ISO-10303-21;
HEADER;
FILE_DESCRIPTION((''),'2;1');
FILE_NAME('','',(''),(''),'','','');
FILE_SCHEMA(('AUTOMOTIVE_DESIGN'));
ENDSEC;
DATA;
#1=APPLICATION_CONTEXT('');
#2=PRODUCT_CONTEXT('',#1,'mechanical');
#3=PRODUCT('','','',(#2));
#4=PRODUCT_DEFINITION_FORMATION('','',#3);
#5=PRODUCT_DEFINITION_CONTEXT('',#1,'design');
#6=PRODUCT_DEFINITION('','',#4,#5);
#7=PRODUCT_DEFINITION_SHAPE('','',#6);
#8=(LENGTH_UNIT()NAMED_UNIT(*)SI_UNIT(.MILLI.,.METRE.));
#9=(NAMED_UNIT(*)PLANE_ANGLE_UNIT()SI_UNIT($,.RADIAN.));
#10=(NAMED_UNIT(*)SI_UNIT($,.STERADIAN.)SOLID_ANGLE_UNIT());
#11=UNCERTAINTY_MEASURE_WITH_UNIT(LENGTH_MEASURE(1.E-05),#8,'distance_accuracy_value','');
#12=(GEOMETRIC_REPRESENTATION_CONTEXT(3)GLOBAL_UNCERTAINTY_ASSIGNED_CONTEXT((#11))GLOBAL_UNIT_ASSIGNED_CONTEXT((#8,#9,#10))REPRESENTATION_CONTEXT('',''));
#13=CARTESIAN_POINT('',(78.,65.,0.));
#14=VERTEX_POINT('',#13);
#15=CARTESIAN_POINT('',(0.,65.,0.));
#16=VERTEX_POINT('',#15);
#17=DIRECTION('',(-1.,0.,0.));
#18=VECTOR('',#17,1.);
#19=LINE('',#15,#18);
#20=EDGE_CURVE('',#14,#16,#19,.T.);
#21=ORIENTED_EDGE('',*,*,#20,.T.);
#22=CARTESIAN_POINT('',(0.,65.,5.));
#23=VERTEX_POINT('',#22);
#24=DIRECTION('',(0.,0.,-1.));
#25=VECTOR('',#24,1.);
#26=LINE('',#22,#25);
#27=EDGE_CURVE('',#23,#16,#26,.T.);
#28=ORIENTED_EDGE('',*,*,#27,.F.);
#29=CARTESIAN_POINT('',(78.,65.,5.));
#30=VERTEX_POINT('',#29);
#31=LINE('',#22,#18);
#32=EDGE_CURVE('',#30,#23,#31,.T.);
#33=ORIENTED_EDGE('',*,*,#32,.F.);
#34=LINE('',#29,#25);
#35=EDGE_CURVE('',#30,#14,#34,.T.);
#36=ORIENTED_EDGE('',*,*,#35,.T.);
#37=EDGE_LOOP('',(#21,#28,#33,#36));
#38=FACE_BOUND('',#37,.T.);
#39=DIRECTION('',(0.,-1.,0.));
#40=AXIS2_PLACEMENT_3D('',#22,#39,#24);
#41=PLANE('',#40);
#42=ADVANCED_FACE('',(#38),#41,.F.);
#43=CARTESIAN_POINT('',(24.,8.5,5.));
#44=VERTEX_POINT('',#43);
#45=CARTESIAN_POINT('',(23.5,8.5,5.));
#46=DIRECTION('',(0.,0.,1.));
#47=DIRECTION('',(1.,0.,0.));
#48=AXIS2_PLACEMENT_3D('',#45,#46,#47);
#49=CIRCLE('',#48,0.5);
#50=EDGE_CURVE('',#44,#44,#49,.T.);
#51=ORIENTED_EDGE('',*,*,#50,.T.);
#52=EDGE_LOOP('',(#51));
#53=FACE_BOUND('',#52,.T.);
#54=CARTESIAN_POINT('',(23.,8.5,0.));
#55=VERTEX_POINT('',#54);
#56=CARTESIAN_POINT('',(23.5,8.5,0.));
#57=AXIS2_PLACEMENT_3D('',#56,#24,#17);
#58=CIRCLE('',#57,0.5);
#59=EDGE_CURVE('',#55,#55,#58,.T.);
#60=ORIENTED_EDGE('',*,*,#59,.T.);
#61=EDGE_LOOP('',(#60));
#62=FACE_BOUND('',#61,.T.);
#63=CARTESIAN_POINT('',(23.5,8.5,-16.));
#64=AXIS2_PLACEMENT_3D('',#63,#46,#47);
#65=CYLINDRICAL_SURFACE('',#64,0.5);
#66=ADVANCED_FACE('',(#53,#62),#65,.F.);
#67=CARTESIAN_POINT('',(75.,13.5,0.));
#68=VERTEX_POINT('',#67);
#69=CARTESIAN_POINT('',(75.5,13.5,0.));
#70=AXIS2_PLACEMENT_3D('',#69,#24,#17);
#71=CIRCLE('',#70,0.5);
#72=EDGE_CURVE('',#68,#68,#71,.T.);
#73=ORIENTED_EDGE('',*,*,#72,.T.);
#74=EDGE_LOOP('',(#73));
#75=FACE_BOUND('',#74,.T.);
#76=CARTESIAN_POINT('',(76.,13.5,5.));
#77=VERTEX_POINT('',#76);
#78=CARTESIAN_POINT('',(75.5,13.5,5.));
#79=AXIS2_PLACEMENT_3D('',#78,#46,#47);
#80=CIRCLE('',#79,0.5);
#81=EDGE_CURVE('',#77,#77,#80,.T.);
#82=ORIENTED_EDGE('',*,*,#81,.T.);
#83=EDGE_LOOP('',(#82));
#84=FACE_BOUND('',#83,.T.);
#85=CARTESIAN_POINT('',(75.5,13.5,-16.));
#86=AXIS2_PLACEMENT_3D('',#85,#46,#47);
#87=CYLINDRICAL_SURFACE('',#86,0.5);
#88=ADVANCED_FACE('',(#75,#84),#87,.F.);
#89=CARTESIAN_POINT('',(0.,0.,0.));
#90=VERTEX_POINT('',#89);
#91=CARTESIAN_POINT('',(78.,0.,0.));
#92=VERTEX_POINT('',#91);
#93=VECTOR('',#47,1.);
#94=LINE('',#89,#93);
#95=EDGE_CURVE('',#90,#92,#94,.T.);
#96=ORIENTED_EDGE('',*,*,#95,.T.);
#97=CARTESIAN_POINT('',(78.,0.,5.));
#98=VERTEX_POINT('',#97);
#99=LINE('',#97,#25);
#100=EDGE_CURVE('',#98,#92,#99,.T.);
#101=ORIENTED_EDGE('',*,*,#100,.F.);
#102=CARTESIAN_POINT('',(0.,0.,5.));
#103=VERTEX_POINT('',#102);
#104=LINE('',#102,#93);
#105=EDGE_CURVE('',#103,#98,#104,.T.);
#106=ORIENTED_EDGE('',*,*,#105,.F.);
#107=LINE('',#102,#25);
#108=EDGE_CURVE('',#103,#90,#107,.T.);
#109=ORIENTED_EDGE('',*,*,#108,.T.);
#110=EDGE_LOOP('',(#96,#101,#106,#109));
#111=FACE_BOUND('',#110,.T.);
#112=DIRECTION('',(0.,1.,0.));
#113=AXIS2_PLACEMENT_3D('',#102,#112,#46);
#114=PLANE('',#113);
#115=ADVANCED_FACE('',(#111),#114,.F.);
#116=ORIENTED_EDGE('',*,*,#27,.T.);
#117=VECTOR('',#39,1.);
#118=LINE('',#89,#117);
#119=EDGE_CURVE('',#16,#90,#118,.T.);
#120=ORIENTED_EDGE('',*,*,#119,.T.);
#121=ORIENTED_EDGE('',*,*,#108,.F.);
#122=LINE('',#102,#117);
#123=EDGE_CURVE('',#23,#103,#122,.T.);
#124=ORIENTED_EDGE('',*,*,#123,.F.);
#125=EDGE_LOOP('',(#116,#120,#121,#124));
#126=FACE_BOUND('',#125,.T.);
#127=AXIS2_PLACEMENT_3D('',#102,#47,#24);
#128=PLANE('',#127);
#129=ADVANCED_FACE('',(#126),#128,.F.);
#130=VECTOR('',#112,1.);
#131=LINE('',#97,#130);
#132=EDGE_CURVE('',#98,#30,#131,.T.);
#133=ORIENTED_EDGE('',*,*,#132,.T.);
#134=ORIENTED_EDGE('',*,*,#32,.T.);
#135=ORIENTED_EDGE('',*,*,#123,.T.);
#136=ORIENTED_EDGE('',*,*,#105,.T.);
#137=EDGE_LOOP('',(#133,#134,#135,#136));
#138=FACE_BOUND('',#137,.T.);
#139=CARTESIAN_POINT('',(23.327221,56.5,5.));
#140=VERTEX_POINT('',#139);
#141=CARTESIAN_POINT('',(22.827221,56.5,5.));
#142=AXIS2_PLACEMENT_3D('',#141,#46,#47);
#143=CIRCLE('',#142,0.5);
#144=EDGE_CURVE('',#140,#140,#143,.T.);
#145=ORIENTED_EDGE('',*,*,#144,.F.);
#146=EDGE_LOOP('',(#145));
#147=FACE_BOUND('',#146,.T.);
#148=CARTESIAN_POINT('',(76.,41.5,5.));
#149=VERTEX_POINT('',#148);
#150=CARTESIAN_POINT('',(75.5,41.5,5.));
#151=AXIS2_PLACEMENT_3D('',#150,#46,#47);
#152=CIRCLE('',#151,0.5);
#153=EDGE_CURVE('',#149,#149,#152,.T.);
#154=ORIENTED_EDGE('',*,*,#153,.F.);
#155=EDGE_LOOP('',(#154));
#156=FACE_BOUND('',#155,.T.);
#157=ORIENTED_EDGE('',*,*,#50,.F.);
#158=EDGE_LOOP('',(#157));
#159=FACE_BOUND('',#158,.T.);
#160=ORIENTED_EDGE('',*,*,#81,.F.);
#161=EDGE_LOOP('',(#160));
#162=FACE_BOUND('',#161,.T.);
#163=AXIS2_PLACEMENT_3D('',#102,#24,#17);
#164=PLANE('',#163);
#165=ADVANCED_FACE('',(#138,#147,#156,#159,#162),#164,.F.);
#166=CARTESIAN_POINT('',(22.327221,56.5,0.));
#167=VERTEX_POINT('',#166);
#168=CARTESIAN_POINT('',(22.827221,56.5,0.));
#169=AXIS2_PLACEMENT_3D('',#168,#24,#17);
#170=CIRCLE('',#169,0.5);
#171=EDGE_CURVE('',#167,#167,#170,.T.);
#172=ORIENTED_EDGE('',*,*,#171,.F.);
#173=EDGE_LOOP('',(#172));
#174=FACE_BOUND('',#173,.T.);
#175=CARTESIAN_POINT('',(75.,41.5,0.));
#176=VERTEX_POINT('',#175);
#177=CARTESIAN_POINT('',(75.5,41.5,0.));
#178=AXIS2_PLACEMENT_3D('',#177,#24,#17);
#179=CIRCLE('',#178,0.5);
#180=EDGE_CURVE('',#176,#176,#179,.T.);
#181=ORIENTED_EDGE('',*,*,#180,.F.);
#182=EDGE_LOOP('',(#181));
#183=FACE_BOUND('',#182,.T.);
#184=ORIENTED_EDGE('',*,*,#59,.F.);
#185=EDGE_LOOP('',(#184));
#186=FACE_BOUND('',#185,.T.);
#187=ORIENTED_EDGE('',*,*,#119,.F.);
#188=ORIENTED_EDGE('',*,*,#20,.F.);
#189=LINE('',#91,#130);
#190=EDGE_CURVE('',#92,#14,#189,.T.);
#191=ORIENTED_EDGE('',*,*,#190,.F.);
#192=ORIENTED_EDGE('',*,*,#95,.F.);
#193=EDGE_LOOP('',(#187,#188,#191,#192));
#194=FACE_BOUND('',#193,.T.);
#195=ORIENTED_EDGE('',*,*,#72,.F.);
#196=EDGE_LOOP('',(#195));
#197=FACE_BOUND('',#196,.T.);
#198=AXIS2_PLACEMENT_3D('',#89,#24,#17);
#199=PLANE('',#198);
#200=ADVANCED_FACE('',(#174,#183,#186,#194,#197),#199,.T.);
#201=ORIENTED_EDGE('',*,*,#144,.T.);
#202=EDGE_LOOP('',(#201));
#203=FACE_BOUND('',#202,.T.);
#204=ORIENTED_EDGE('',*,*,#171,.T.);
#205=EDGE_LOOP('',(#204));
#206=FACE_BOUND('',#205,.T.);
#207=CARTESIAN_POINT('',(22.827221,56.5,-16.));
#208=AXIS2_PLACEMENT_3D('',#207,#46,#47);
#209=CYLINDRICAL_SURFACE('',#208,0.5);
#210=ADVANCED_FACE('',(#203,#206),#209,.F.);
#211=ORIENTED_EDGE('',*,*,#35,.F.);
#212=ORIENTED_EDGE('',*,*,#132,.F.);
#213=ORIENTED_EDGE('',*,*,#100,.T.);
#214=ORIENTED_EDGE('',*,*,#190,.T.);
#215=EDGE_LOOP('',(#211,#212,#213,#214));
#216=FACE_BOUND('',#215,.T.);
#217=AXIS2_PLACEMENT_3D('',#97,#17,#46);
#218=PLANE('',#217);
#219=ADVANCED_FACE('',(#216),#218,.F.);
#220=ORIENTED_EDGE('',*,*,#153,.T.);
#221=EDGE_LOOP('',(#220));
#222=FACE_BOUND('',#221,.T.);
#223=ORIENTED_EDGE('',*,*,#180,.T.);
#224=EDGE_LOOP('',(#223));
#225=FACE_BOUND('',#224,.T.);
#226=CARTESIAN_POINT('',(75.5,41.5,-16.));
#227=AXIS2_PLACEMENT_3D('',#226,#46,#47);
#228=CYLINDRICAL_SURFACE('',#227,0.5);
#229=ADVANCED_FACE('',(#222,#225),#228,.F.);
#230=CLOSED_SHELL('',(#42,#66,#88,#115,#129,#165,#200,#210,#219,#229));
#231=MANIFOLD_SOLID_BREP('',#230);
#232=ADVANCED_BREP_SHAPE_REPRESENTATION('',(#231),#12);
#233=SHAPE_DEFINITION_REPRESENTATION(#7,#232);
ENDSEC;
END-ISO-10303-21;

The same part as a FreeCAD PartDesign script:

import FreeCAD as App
import Part
import Sketcher
from FreeCAD import Vector
Q = App.Units.Quantity

doc = App.newDocument("Part")
params = doc.addObject("Spreadsheet::Sheet", "Params")
for row, (alias, value) in enumerate([
    ("sketch1_width", "78 mm"),
    ("sketch1_height", "65 mm"),
    ("pad1_length", "5 mm"),
    ("sketch2_diameter", "1 mm"),
    ("pocket1_length", "21 mm"),
], start=1):
    params.set(f"A{row}", alias)
    params.set(f"B{row}", "=" + value)
    params.setAlias(f"B{row}", alias)

body = doc.addObject("PartDesign::Body", "Body")

sketch1 = body.newObject("Sketcher::SketchObject", "Sketch")
sketch1.AttachmentSupport = (doc.getObject("XY_Plane"), [""])
sketch1.MapMode = "FlatFace"
sketch1.addGeometry([
    Part.LineSegment(Vector(0, 65, 0), Vector(0, 0, 0)),
    Part.LineSegment(Vector(0, 0, 0), Vector(78, 0, 0)),
    Part.LineSegment(Vector(78, 0, 0), Vector(78, 65, 0)),
    Part.LineSegment(Vector(78, 65, 0), Vector(0, 65, 0)),
], False)
sketch1.addConstraint([
    Sketcher.Constraint("Coincident", 0, 2, 1, 1),
    Sketcher.Constraint("Coincident", 1, 2, 2, 1),
    Sketcher.Constraint("Coincident", 2, 2, 3, 1),
    Sketcher.Constraint("Coincident", 3, 2, 0, 1),
    Sketcher.Constraint("Vertical", 0),
    Sketcher.Constraint("Horizontal", 1),
    Sketcher.Constraint("Vertical", 2),
    Sketcher.Constraint("Horizontal", 3),
    Sketcher.Constraint("Coincident", 0, 2, -1, 1),
    Sketcher.Constraint("DistanceX", 1, 1, 1, 2, Q("78 mm")),
    Sketcher.Constraint("DistanceY", 0, 2, 0, 1, Q("65 mm")),
])
sketch1.setExpression("Constraints[9]", "Params.sketch1_width")
sketch1.setExpression("Constraints[10]", "Params.sketch1_height")
pad1 = body.newObject("PartDesign::Pad", "Pad")
pad1.Profile = sketch1
pad1.setExpression("Length", "Params.pad1_length")

sketch2 = body.newObject("Sketcher::SketchObject", "Sketch001")
sketch2.AttachmentSupport = (doc.getObject("XY_Plane"), [""])
sketch2.MapMode = "FlatFace"
sketch2.AttachmentOffset = App.Placement(Vector(0, 0, 5), App.Rotation())
sketch2.addGeometry([
    Part.Circle(Vector(22.8, 56.5, 0), Vector(0, 0, 1), 0.5),
    Part.Circle(Vector(23.5, 8.5, 0), Vector(0, 0, 1), 0.5),
    Part.Circle(Vector(75.5, 13.5, 0), Vector(0, 0, 1), 0.5),
    Part.Circle(Vector(75.5, 41.5, 0), Vector(0, 0, 1), 0.5),
], False)
sketch2.addConstraint([
    Sketcher.Constraint("Equal", 0, 1),
    Sketcher.Constraint("Equal", 1, 2),
    Sketcher.Constraint("Equal", 2, 3),
    Sketcher.Constraint("Vertical", 2, 3, 3, 3),
    Sketcher.Constraint("Diameter", 0, Q("1 mm")),
    Sketcher.Constraint("DistanceY", 1, 3, 0, 3, Q("48 mm")),
    Sketcher.Constraint("DistanceX", 1, 3, 2, 3, Q("52 mm")),
    Sketcher.Constraint("DistanceY", 1, 3, 2, 3, Q("5 mm")),
    Sketcher.Constraint("DistanceY", 2, 3, 3, 3, Q("28 mm")),
    Sketcher.Constraint("DistanceY", -1, 1, 0, 3, Q("56.5 mm")),
    Sketcher.Constraint("DistanceX", -1, 1, 1, 3, Q("23.5 mm")),
    Sketcher.Constraint("DistanceX", -1, 1, 0, 3, Q("22.827221 mm")),
])
sketch2.setExpression("Constraints[4]", "Params.sketch2_diameter")
pocket1 = body.newObject("PartDesign::Pocket", "Pocket")
pocket1.Profile = sketch2
pocket1.setExpression("Length", "Params.pocket1_length")

doc.recompute()
